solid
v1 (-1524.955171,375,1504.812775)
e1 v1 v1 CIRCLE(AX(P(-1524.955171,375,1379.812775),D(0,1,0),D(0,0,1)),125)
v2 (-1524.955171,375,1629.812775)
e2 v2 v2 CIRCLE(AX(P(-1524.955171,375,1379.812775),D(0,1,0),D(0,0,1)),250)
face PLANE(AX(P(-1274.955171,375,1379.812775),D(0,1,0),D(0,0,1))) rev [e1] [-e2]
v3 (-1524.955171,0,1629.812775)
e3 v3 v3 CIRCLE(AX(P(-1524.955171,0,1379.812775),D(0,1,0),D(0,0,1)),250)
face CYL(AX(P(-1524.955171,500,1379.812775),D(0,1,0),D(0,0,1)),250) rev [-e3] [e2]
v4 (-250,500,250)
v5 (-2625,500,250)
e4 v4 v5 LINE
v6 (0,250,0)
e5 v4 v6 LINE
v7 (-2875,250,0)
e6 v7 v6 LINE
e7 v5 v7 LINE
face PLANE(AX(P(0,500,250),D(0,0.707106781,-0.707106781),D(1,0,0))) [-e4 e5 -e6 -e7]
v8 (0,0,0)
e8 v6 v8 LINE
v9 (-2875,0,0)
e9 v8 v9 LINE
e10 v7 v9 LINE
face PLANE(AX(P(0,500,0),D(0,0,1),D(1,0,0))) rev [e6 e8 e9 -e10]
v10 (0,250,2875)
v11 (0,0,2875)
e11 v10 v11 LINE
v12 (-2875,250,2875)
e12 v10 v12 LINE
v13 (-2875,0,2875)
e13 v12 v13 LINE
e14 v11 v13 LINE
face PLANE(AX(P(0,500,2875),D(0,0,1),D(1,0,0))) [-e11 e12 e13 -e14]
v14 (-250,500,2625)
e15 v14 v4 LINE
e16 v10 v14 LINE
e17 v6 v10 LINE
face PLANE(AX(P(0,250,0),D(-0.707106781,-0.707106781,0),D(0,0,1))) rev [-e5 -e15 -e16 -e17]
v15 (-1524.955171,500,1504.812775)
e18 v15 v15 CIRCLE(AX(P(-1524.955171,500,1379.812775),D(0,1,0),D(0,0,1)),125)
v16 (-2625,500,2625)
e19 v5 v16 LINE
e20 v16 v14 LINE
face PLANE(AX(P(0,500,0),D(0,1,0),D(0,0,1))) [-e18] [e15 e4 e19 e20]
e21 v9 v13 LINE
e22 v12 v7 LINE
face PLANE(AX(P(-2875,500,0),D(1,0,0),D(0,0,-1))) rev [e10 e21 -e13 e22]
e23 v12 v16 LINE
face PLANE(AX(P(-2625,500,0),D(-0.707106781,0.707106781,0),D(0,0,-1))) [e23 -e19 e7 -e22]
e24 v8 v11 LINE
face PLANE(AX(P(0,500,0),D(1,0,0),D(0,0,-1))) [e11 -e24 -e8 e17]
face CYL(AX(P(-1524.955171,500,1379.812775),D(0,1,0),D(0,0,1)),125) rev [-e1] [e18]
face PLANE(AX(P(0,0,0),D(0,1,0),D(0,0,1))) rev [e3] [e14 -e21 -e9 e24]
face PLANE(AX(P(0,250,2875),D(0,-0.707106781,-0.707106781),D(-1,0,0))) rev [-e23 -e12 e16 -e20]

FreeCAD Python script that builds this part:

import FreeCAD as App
import Part
import Sketcher

V = App.Vector
Q = App.Units.Quantity


def edges_at(feature, points):
    """Names of the edges that pass closest to the given points."""
    edges = feature.Shape.Edges
    near = lambda p: min(range(len(edges)), key=lambda i: edges[i].distToShape(Part.Vertex(*p))[0])
    return sorted({f"Edge{near(p) + 1}" for p in points})

doc = App.newDocument("Part")
body = doc.addObject("PartDesign::Body", "Body")

# Sketch on XZ plane
sketch1 = body.newObject("Sketcher::SketchObject", "Sketch")
sketch1.AttachmentSupport = (doc.getObject("XZ_Plane"), [""])
sketch1.MapMode = "FlatFace"
sketch1.addGeometry([
    Part.LineSegment(V(-2875, 0, 0), V(-2875, 2875, 0)),
    Part.LineSegment(V(-2875, 2875, 0), V(0, 2875, 0)),
    Part.LineSegment(V(0, 2875, 0), V(0, 0, 0)),
    Part.LineSegment(V(0, 0, 0), V(-2875, 0, 0)),
], False)
sketch1.addConstraint([
    Sketcher.Constraint("Coincident", 0, 2, 1, 1),
    Sketcher.Constraint("Coincident", 1, 2, 2, 1),
    Sketcher.Constraint("Coincident", 2, 2, 3, 1),
    Sketcher.Constraint("Coincident", 3, 2, 0, 1),
    Sketcher.Constraint("Vertical", 0),
    Sketcher.Constraint("Horizontal", 1),
    Sketcher.Constraint("Vertical", 2),
    Sketcher.Constraint("Horizontal", 3),
    Sketcher.Constraint("Coincident", 2, 2, -1, 1),
    Sketcher.Constraint("Equal", 3, 0),
    Sketcher.Constraint("DistanceX", 1, 1, 1, 2, Q("2875 mm")),
])
pad1 = body.newObject("PartDesign::Pad", "Pad")
pad1.Profile = sketch1
pad1.Length = 500
pad1.Reversed = True
doc.recompute()

chamfer = body.newObject("PartDesign::Chamfer", "Chamfer")
chamfer.Base = (pad1, edges_at(pad1, [
    (-1437.5, 500, 0),
    (0, 500, 1437.5),
    (-1437.5, 500, 2875),
    (-2875, 500, 1437.5),
]))
chamfer.Size = 250

# Sketch on YZ plane
sketch2 = body.newObject("Sketcher::SketchObject", "Sketch001")
sketch2.AttachmentSupport = (doc.getObject("YZ_Plane"), [""])
sketch2.MapMode = "FlatFace"
sketch2.AttachmentOffset = App.Placement(V(0, 0, -1524.955171), App.Rotation())
sketch2.addGeometry([
    Part.LineSegment(V(0, 1379.812775, 0), V(500, 1379.812775, 0)),  # 0
    Part.LineSegment(V(500, 1379.812775, 0), V(500, 1504.812775, 0)),  # 1
    Part.LineSegment(V(500, 1504.812775, 0), V(375, 1504.812775, 0)),  # 2
    Part.LineSegment(V(375, 1504.812775, 0), V(375, 1629.812775, 0)),  # 3
    Part.LineSegment(V(375, 1629.812775, 0), V(0, 1629.812775, 0)),  # 4
    Part.LineSegment(V(0, 1629.812775, 0), V(0, 1379.812775, 0)),  # 5
], False)
sketch2.addGeometry(Part.LineSegment(V(500, 1379.812775, 0), V(0, 1379.812775, 0)), True)  # axis
sketch2.addConstraint([
    Sketcher.Constraint("Coincident", 0, 2, 1, 1),
    Sketcher.Constraint("Coincident", 1, 2, 2, 1),
    Sketcher.Constraint("Coincident", 2, 2, 3, 1),
    Sketcher.Constraint("Coincident", 3, 2, 4, 1),
    Sketcher.Constraint("Coincident", 4, 2, 5, 1),
    Sketcher.Constraint("Coincident", 5, 2, 0, 1),
    Sketcher.Constraint("Horizontal", 0),
    Sketcher.Constraint("Vertical", 1),
    Sketcher.Constraint("Horizontal", 2),
    Sketcher.Constraint("Vertical", 3),
    Sketcher.Constraint("Horizontal", 4),
    Sketcher.Constraint("Vertical", 5),
    Sketcher.Constraint("Horizontal", 6),
    Sketcher.Constraint("Coincident", 6, 1, 0, 2),
    Sketcher.Constraint("PointOnObject", 4, 2, -2),
    Sketcher.Constraint("PointOnObject", 6, 2, -2),
    Sketcher.Constraint("Equal", 2, 1),
    Sketcher.Constraint("Equal", 1, 3),
    Sketcher.Constraint("DistanceX", 0, 1, 0, 2, Q("500 mm")),
    Sketcher.Constraint("DistanceX", 2, 2, 2, 1, Q("125 mm")),
    Sketcher.Constraint("DistanceY", -1, 1, 0, 2, Q("1379.812775 mm")),
])
groove = body.newObject("PartDesign::Groove", "Groove")
groove.Profile = sketch2
groove.ReferenceAxis = (sketch2, ["Axis0"])
groove.Angle = 360

doc.recompute()
